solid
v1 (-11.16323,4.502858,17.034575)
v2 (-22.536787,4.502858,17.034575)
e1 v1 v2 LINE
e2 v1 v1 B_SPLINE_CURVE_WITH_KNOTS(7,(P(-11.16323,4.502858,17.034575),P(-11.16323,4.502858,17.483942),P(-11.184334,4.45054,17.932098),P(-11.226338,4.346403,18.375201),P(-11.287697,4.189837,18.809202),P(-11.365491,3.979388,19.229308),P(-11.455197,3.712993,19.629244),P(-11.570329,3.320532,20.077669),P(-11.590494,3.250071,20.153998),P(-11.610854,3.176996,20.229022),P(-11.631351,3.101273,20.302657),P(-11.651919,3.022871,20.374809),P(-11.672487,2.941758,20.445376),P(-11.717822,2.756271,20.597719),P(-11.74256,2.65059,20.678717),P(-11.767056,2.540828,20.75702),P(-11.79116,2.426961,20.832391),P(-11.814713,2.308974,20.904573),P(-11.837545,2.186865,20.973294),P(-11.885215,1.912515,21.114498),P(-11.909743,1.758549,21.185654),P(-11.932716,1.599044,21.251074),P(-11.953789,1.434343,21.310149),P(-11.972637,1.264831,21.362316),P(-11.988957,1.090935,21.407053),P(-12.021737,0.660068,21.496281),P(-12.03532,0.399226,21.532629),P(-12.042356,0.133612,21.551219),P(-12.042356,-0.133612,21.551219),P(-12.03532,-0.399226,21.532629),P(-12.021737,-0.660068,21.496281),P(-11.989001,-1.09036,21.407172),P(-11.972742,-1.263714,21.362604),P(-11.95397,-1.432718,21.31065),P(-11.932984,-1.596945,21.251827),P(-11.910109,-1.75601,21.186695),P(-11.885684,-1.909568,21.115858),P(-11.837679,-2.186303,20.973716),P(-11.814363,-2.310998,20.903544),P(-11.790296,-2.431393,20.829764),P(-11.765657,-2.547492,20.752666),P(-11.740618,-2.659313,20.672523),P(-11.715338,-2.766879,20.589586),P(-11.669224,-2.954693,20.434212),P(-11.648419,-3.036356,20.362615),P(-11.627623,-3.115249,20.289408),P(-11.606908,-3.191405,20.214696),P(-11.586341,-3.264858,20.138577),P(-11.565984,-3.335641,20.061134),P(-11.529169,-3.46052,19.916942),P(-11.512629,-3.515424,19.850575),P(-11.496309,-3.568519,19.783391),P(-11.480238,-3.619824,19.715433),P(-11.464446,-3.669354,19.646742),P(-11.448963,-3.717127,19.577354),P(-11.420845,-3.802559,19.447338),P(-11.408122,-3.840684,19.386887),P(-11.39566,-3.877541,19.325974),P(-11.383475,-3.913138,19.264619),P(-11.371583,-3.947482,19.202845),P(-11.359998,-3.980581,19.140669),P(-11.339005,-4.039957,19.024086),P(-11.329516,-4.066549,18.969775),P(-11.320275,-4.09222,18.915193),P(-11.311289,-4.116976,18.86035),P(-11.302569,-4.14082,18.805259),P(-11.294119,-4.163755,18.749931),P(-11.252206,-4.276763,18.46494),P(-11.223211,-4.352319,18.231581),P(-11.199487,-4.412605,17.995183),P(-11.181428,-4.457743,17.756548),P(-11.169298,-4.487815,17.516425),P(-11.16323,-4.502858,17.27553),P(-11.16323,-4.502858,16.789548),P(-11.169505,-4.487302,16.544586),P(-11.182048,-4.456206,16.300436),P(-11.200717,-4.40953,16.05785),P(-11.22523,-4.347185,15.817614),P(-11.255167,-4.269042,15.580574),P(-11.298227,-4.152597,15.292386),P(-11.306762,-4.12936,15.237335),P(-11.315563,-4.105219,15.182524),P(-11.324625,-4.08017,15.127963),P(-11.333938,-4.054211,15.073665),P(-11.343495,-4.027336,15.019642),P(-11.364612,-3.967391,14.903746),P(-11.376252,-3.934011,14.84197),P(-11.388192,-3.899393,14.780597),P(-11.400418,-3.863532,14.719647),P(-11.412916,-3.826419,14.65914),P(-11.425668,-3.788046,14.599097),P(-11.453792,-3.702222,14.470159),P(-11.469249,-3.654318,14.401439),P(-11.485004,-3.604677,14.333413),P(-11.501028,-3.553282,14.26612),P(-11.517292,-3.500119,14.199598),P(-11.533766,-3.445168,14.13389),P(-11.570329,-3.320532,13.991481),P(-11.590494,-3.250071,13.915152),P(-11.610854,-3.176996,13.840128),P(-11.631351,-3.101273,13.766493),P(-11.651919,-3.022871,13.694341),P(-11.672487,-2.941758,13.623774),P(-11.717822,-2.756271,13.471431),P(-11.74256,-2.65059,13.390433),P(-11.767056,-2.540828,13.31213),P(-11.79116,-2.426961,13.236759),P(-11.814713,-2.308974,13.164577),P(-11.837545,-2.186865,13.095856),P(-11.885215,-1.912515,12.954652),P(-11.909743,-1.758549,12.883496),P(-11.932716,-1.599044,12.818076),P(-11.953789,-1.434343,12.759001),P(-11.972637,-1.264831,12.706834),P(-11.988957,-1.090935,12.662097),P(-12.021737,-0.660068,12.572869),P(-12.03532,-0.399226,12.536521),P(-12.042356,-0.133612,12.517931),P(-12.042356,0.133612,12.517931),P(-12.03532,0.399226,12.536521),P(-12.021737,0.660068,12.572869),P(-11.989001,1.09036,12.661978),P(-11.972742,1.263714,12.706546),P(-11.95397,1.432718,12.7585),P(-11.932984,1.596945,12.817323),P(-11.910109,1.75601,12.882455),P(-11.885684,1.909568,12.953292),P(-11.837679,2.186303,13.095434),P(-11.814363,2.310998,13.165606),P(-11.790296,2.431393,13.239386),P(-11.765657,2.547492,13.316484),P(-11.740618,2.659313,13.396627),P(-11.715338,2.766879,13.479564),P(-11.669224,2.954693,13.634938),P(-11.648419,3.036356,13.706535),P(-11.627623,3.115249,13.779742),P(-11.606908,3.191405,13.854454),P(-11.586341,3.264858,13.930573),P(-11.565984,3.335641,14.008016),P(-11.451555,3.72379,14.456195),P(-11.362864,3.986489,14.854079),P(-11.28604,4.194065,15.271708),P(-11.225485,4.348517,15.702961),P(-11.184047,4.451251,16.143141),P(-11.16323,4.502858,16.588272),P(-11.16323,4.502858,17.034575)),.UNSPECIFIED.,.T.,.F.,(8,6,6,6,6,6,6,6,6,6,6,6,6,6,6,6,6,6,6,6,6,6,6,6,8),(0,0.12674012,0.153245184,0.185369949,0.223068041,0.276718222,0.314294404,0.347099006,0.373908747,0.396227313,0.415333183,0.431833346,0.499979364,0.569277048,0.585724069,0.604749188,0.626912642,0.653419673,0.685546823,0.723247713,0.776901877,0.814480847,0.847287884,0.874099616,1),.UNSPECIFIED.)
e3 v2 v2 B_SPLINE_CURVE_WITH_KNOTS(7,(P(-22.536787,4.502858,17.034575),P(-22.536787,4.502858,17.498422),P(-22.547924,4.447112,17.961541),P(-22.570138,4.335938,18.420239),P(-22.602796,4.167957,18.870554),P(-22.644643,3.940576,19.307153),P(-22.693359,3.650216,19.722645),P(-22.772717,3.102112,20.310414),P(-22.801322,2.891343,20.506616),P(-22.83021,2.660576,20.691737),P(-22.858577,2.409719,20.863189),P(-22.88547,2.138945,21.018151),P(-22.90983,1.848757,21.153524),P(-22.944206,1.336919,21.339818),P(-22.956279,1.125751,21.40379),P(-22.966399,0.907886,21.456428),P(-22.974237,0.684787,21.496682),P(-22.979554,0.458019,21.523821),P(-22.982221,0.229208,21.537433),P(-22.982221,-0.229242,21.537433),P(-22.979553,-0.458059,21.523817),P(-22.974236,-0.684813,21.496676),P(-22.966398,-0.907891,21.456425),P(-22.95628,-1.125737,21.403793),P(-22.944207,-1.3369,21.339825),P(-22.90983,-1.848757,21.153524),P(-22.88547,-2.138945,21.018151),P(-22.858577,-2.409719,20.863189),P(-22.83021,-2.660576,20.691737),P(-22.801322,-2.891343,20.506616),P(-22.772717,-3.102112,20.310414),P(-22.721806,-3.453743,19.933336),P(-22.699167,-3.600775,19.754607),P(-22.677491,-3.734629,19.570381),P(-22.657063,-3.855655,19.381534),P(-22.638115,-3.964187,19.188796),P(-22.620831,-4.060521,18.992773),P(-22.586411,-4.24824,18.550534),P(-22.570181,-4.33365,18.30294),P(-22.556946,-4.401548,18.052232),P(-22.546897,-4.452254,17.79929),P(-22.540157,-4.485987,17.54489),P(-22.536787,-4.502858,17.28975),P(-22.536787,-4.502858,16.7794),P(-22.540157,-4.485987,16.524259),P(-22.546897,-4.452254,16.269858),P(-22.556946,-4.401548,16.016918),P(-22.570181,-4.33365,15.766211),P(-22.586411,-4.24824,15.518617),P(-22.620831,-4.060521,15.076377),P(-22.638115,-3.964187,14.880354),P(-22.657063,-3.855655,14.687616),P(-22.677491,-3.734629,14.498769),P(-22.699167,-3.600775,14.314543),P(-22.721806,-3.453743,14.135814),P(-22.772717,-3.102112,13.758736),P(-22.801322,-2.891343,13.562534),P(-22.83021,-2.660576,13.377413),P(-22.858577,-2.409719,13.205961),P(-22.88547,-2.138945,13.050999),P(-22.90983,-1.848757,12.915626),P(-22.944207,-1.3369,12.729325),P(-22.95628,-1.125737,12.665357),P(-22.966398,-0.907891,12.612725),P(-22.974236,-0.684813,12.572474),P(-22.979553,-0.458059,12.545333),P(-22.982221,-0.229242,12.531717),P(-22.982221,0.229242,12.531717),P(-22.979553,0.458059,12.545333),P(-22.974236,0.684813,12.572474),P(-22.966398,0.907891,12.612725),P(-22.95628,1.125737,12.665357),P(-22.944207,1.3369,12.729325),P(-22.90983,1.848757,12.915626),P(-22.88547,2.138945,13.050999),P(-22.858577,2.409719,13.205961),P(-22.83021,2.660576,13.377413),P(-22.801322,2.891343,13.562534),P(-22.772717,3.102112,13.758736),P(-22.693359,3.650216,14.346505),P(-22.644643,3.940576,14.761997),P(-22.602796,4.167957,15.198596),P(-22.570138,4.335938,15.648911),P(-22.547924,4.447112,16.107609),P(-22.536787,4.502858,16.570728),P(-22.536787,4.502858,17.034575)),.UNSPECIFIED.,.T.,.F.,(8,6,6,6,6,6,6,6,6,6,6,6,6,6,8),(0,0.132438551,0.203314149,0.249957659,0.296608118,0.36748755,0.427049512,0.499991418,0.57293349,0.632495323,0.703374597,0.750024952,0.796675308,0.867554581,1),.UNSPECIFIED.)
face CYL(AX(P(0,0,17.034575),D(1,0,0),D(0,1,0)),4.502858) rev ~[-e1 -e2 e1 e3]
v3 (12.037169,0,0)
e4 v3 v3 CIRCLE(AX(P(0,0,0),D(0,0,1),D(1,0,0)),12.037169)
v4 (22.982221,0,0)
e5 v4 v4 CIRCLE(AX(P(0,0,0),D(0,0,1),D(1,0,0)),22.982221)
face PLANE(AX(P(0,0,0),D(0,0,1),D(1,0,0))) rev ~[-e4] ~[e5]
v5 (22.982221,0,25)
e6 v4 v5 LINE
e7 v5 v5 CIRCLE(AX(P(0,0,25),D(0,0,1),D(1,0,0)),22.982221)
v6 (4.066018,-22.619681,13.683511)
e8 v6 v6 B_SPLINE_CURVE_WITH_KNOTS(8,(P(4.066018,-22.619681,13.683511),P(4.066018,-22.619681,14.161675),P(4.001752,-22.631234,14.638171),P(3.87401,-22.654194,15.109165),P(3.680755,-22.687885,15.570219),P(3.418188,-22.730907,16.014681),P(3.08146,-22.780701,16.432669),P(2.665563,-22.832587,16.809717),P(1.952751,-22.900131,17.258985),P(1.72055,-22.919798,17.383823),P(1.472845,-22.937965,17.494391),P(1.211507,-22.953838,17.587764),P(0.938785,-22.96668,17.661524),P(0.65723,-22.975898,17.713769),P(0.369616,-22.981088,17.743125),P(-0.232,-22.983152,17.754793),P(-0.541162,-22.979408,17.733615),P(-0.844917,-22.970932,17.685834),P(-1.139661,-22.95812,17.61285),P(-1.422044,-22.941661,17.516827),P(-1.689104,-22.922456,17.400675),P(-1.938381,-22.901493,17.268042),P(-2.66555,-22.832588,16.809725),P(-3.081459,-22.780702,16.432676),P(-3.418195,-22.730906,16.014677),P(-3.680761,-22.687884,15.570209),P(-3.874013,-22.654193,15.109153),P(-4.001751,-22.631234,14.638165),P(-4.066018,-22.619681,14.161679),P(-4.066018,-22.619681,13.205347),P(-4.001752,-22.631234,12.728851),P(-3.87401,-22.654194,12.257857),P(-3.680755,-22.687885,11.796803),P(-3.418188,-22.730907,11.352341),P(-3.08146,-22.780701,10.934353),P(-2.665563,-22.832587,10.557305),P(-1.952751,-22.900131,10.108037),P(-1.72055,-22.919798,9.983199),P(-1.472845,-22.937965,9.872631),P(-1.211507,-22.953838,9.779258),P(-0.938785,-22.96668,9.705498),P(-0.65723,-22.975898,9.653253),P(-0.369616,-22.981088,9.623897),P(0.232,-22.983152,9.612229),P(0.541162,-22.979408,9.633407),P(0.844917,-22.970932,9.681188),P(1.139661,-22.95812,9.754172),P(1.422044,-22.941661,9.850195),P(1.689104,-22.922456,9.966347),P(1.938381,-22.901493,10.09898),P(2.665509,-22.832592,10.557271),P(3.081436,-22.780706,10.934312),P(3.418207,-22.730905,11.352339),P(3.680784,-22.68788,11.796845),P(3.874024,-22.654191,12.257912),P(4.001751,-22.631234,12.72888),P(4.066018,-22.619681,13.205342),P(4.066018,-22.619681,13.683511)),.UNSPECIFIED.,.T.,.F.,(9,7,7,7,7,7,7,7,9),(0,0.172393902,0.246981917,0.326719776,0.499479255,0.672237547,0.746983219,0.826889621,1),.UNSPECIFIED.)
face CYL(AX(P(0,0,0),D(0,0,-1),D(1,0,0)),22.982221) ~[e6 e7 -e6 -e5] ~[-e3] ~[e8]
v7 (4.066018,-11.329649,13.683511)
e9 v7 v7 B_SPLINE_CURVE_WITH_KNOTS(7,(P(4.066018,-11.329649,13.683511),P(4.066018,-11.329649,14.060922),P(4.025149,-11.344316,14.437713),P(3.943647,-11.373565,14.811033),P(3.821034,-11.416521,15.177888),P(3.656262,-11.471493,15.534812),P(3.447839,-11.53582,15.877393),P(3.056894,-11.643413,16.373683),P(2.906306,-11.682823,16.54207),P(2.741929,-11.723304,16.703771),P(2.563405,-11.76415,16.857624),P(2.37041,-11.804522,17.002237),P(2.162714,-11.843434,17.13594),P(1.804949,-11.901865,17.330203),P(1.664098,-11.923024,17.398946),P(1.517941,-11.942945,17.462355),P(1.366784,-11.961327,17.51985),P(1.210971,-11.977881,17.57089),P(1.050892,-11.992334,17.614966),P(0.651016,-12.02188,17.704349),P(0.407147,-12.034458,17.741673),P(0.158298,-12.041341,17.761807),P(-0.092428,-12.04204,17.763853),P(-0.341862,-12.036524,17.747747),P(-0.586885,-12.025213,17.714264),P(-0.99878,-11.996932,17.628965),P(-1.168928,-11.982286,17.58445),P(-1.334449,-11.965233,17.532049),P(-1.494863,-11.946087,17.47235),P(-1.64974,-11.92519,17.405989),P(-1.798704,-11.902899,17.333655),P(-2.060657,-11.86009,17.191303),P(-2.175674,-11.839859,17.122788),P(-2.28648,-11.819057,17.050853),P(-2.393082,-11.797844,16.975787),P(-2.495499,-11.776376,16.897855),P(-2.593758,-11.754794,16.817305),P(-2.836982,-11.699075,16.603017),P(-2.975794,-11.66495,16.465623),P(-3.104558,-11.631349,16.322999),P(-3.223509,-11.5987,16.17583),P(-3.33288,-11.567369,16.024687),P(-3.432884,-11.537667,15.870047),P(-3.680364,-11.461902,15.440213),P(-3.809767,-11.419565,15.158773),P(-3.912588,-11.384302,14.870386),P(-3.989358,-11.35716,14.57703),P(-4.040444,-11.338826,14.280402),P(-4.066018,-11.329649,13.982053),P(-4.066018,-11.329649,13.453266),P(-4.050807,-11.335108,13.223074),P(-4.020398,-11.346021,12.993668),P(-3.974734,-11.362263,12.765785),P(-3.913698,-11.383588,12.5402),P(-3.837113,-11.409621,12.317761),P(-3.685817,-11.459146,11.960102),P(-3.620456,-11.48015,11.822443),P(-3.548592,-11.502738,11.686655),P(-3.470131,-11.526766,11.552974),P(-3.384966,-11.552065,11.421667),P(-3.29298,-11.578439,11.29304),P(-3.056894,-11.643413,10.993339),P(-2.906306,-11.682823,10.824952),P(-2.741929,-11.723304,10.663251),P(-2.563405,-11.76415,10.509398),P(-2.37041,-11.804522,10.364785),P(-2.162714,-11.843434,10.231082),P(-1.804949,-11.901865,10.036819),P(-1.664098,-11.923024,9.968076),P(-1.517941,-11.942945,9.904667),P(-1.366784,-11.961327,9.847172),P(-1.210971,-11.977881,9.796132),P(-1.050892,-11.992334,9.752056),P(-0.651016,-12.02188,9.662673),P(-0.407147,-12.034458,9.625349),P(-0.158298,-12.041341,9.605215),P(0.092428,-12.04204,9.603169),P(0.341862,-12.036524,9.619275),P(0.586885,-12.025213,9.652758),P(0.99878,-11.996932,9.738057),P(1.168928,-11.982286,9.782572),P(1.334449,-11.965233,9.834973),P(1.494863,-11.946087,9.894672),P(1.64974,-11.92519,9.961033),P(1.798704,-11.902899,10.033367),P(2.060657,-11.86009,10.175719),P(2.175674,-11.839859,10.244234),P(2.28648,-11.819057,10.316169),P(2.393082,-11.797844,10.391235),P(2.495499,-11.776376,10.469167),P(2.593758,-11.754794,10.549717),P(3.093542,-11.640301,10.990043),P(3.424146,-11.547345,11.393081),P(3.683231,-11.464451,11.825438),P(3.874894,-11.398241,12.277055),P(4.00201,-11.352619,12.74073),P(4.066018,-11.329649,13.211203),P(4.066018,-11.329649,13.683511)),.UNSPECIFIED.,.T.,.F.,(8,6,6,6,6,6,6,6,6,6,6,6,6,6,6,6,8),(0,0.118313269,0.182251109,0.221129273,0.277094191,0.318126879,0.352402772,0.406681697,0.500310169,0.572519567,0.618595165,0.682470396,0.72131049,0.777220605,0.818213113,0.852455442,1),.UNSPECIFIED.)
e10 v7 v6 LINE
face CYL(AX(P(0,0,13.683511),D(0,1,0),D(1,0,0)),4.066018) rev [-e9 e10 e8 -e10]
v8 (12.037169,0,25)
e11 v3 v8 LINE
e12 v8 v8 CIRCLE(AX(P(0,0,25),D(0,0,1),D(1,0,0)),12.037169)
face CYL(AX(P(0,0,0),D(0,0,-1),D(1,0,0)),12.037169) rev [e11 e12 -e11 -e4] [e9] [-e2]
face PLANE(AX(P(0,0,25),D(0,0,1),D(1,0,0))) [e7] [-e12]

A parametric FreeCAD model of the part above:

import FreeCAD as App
import Part
import Sketcher

V = App.Vector

doc = App.newDocument("Part")
body = doc.addObject("PartDesign::Body", "Body")

sketch1 = doc.addObject("Sketcher::SketchObject", "Sketch")
body.addObject(sketch1)
sketch1.AttachmentSupport = (doc.XY_Plane, [""])
sketch1.MapMode = "FlatFace"
sketch1.addGeometry(Part.Circle(V(0, 0, 0), V(0, 0, 1), 23), False)
sketch1.addGeometry(Part.Circle(V(0, 0, 0), V(0, 0, 1), 12), False)
sketch1.addConstraint(Sketcher.Constraint("Coincident", 0, 3, -1, 1))
sketch1.addConstraint(Sketcher.Constraint("Coincident", 1, 3, -1, 1))
sketch1.addConstraint(Sketcher.Constraint("Diameter", 0, 45.964442))
sketch1.addConstraint(Sketcher.Constraint("Diameter", 1, 24.074338))
pad1 = doc.addObject("PartDesign::Pad", "Pad")
body.addObject(pad1)
pad1.Profile = sketch1
pad1.Length = 25

sketch2 = doc.addObject("Sketcher::SketchObject", "Sketch001")
body.addObject(sketch2)
sketch2.AttachmentSupport = (doc.YZ_Plane, [""])
sketch2.MapMode = "FlatFace"
sketch2.addGeometry(Part.Circle(V(0, 17, 0), V(0, 0, 1), 4.5), False)
sketch2.addConstraint(Sketcher.Constraint("PointOnObject", 0, 3, -2))
sketch2.addConstraint(Sketcher.Constraint("Diameter", 0, 9.005716))
sketch2.addConstraint(Sketcher.Constraint("DistanceY", -1, 1, 0, 3, 17.034575))
pocket1 = doc.addObject("PartDesign::Pocket", "Pocket")
body.addObject(pocket1)
pocket1.Profile = sketch2
pocket1.Type = "ThroughAll"

sketch3 = doc.addObject("Sketcher::SketchObject", "Sketch002")
body.addObject(sketch3)
sketch3.AttachmentSupport = (doc.XZ_Plane, [""])
sketch3.MapMode = "FlatFace"
sketch3.addGeometry(Part.Circle(V(0, 13.7, 0), V(0, 0, 1), 4.1), False)
sketch3.addConstraint(Sketcher.Constraint("PointOnObject", 0, 3, -2))
sketch3.addConstraint(Sketcher.Constraint("Diameter", 0, 8.132036))
sketch3.addConstraint(Sketcher.Constraint("DistanceY", -1, 1, 0, 3, 13.683511))
pocket2 = doc.addObject("PartDesign::Pocket", "Pocket001")
body.addObject(pocket2)
pocket2.Profile = sketch3
pocket2.Type = "ThroughAll"
pocket2.Reversed = True

doc.recompute()
